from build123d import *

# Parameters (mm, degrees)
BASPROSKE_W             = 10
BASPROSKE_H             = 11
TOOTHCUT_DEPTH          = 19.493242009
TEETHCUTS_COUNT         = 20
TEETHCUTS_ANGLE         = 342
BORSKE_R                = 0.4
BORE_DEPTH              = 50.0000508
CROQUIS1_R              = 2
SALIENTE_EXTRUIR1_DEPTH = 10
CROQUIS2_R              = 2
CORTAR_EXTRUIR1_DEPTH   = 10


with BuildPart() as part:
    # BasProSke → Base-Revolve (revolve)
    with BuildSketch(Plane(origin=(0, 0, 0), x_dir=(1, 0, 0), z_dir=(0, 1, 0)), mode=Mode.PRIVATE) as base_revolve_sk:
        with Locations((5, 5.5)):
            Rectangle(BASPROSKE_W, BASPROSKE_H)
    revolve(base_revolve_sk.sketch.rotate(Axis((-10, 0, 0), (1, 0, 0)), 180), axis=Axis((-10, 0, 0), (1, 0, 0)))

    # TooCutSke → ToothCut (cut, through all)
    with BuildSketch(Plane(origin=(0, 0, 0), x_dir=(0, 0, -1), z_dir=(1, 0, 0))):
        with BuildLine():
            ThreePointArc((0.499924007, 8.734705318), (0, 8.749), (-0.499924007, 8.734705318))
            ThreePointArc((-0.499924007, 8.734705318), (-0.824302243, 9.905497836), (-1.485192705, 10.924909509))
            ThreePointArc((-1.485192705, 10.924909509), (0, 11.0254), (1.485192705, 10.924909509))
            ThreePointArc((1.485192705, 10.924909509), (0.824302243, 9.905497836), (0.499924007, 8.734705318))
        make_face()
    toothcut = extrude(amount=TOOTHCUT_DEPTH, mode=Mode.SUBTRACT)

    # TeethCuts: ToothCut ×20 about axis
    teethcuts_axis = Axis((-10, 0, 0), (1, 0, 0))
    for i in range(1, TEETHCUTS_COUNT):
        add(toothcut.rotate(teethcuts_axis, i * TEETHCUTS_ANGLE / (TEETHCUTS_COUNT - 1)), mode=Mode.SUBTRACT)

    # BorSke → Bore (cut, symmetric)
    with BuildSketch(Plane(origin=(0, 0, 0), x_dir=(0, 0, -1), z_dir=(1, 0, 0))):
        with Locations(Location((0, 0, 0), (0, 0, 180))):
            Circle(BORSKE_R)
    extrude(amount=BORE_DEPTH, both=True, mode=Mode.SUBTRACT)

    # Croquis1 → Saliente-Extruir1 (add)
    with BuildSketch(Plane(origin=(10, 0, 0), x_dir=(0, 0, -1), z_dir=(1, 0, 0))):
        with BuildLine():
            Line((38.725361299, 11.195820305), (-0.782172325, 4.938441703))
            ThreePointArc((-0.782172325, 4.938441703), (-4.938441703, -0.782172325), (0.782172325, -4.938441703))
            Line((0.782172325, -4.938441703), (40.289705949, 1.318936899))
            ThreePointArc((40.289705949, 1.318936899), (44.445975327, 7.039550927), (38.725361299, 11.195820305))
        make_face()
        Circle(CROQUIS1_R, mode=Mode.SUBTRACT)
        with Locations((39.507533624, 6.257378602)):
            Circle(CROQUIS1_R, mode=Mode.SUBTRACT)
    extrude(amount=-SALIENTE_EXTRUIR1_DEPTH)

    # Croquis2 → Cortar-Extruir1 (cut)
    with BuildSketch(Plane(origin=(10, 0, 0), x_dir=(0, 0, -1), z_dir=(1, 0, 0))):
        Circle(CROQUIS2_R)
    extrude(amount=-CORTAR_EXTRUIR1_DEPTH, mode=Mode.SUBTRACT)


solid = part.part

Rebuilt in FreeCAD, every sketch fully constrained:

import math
import FreeCAD as App
import Part
import Sketcher
Q = App.Units.Quantity


def add_polygon(sketch, points):
    """Adds a closed chain of lines whose ends are joined by coincident constraints."""
    first, n = sketch.GeometryCount, len(points)
    for a, b in zip(points, points[1:] + points[:1]):
        sketch.addGeometry(Part.LineSegment(App.Vector(*a, 0), App.Vector(*b, 0)), False)
    for i in range(n):
        sketch.addConstraint(Sketcher.Constraint("Coincident", first + i, 2, first + (i + 1) % n, 1))

doc = App.newDocument("Part")
body = doc.addObject("PartDesign::Body", "Body")

sketch1 = body.newObject("Sketcher::SketchObject", "Sketch")
sketch1.AttachmentSupport = (doc.getObject("XZ_Plane"), [""])
sketch1.MapMode = "FlatFace"
add_polygon(sketch1, [(0, -11), (0, 0), (10, 0), (10, -11)])
sketch1.addConstraint([
    Sketcher.Constraint("Vertical", 0),
    Sketcher.Constraint("Horizontal", 1),
    Sketcher.Constraint("Vertical", 2),
    Sketcher.Constraint("Horizontal", 3),
    Sketcher.Constraint("Coincident", 0, 2, -1, 1),
    Sketcher.Constraint("DistanceX", 1, 1, 1, 2, 10.0),
    Sketcher.Constraint("DistanceY", 0, 1, 0, 2, 11.0),
])
revolution = body.newObject("PartDesign::Revolution", "Revolution")
revolution.Profile = sketch1
revolution.ReferenceAxis = (sketch1, ["H_Axis"])
revolution.Angle = 360

sketch2 = body.newObject("Sketcher::SketchObject", "Sketch001")
sketch2.AttachmentSupport = (doc.getObject("YZ_Plane"), [""])
sketch2.MapMode = "FlatFace"
sketch2.addGeometry([
    Part.ArcOfCircle(Part.Circle(App.Vector(0, 0, 0), App.Vector(0, 0, 1), 8.7), math.radians(-3.28), math.radians(3.28)),
    Part.ArcOfCircle(Part.Circle(App.Vector(8.3, -4.5, 0), App.Vector(0, 0, 1), 4), math.radians(48), math.radians(83)),
    Part.ArcOfCircle(Part.Circle(App.Vector(0, 0, 0), App.Vector(0, 0, 1), 11), math.radians(-7.74), math.radians(7.74)),
    Part.ArcOfCircle(Part.Circle(App.Vector(8.3, 4.5, 0), App.Vector(0, 0, 1), 4), math.radians(-83), math.radians(-48)),
], False)
sketch2.addConstraint([
    Sketcher.Constraint("Coincident", 0, 1, 1, 2),
    Sketcher.Constraint("Coincident", 1, 1, 2, 1),
    Sketcher.Constraint("Coincident", 2, 2, 3, 2),
    Sketcher.Constraint("Coincident", 3, 1, 0, 2),
    Sketcher.Constraint("Coincident", 0, 3, -1, 1),
    Sketcher.Constraint("Coincident", 2, 3, -1, 1),
    Sketcher.Constraint("Equal", 1, 3),
    Sketcher.Constraint("Symmetric", 1, 3, 3, 3, -1),
    Sketcher.Constraint("Radius", 1, 4.0),
    Sketcher.Constraint("Radius", 0, 8.749),
    Sketcher.Constraint("Radius", 2, 11.0254),
    Sketcher.Constraint("DistanceY", 1, 3, -1, 1, 4.47219),
    Sketcher.Constraint("DistanceX", -1, 1, 1, 1, 10.92491),
])
pocket1 = body.newObject("PartDesign::Pocket", "Pocket")
pocket1.Profile = sketch2
pocket1.Type = "ThroughAll"
pocket1.Reversed = True
doc.recompute()

polarpattern = body.newObject("PartDesign::PolarPattern", "PolarPattern")
polarpattern.Originals = [pocket1]
polarpattern.Axis = (doc.getObject("X_Axis"), [""])
polarpattern.Angle = 360
polarpattern.Occurrences = 20
body.Tip = polarpattern

sketch3 = body.newObject("Sketcher::SketchObject", "Sketch002")
sketch3.AttachmentSupport = (doc.getObject("YZ_Plane"), [""])
sketch3.MapMode = "FlatFace"
sketch3.addGeometry(Part.Circle(App.Vector(0, 0, 0), App.Vector(0, 0, 1), 0.4), False)
sketch3.addConstraint([
    Sketcher.Constraint("Coincident", 0, 3, -1, 1),
    Sketcher.Constraint("Diameter", 0, 0.8),
])
pocket2 = body.newObject("PartDesign::Pocket", "Pocket001")
pocket2.Profile = sketch3
pocket2.Length = 100.000102
pocket2.Midplane = True

sketch4 = body.newObject("Sketcher::SketchObject", "Sketch003")
sketch4.AttachmentSupport = (doc.getObject("YZ_Plane"), [""])
sketch4.MapMode = "FlatFace"
sketch4.AttachmentOffset = App.Placement(App.Vector(0, 0, 10), App.Rotation())
sketch4.addGeometry([
    Part.LineSegment(App.Vector(11.2, -38.7, 0), App.Vector(4.9, 0.8, 0)),
    Part.ArcOfCircle(Part.Circle(App.Vector(0, 0, 0), App.Vector(0, 0, 1), 5), math.radians(9), math.radians(189)),
    Part.LineSegment(App.Vector(-4.9, -0.8, 0), App.Vector(1.3, -40.3, 0)),
    Part.ArcOfCircle(Part.Circle(App.Vector(6.3, -39.5, 0), App.Vector(0, 0, 1), 5), math.radians(-171), math.radians(9)),
    Part.Circle(App.Vector(0, 0, 0), App.Vector(0, 0, 1), 2),
    Part.Circle(App.Vector(6.3, -39.5, 0), App.Vector(0, 0, 1), 2),
], False)
sketch4.addConstraint([
    Sketcher.Constraint("Tangent", 0, 2, 1, 1),
    Sketcher.Constraint("Tangent", 1, 2, 2, 1),
    Sketcher.Constraint("Tangent", 2, 2, 3, 1),
    Sketcher.Constraint("Tangent", 3, 2, 0, 1),
    Sketcher.Constraint("Coincident", 1, 3, -1, 1),
    Sketcher.Constraint("Coincident", 4, 3, -1, 1),
    Sketcher.Constraint("Coincident", 5, 3, 3, 3),
    Sketcher.Constraint("Equal", 1, 3),
    Sketcher.Constraint("Equal", 4, 5),
    Sketcher.Constraint("Diameter", 4, 4.0),
    Sketcher.Constraint("Radius", 1, 5.0),
    Sketcher.Constraint("Angle", 0, Q("99 deg")),
    Sketcher.Constraint("Distance", 0, 40.0),
])
pad1 = body.newObject("PartDesign::Pad", "Pad")
pad1.Profile = sketch4
pad1.Length = 10
pad1.Reversed = True

sketch5 = body.newObject("Sketcher::SketchObject", "Sketch004")
sketch5.AttachmentSupport = (doc.getObject("YZ_Plane"), [""])
sketch5.MapMode = "FlatFace"
sketch5.AttachmentOffset = App.Placement(App.Vector(0, 0, 10), App.Rotation())
sketch5.addGeometry(Part.Circle(App.Vector(0, 0, 0), App.Vector(0, 0, 1), 2), False)
sketch5.addConstraint([
    Sketcher.Constraint("Coincident", 0, 3, -1, 1),
    Sketcher.Constraint("Diameter", 0, 4.0),
])
pocket3 = body.newObject("PartDesign::Pocket", "Pocket002")
pocket3.Profile = sketch5
pocket3.Length = 10

doc.recompute()
